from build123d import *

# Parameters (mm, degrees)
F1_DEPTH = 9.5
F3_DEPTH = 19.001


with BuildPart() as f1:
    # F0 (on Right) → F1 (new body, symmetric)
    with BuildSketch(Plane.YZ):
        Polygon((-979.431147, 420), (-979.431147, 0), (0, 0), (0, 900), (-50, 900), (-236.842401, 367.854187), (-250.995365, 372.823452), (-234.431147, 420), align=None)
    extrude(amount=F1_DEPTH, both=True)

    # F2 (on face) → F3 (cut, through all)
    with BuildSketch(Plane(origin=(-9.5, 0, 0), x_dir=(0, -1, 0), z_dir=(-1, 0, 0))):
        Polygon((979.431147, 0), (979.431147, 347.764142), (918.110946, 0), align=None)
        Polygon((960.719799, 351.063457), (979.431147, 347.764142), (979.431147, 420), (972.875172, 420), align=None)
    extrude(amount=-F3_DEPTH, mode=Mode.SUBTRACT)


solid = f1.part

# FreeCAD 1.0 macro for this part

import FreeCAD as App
import Part
import Sketcher
Q = App.Units.Quantity

doc = App.newDocument("Part")
body = doc.addObject("PartDesign::Body", "Body")

sketch1 = body.newObject("Sketcher::SketchObject", "Sketch")
sketch1.AttachmentSupport = (doc.getObject("YZ_Plane"), [""])
sketch1.MapMode = "FlatFace"
sketch1.addGeometry([
    Part.LineSegment(App.Vector(-979, 420, 0), App.Vector(-979, 0, 0)),
    Part.LineSegment(App.Vector(-979, 0, 0), App.Vector(0, 0, 0)),
    Part.LineSegment(App.Vector(0, 0, 0), App.Vector(0, 900, 0)),
    Part.LineSegment(App.Vector(0, 900, 0), App.Vector(-50, 900, 0)),
    Part.LineSegment(App.Vector(-50, 900, 0), App.Vector(-237, 368, 0)),
    Part.LineSegment(App.Vector(-237, 368, 0), App.Vector(-251, 373, 0)),
    Part.LineSegment(App.Vector(-251, 373, 0), App.Vector(-234, 420, 0)),
    Part.LineSegment(App.Vector(-234, 420, 0), App.Vector(-979, 420, 0)),
], False)
sketch1.addConstraint([
    Sketcher.Constraint("Coincident", 0, 2, 1, 1),
    Sketcher.Constraint("Coincident", 1, 2, 2, 1),
    Sketcher.Constraint("Coincident", 2, 2, 3, 1),
    Sketcher.Constraint("Coincident", 3, 2, 4, 1),
    Sketcher.Constraint("Coincident", 4, 2, 5, 1),
    Sketcher.Constraint("Coincident", 5, 2, 6, 1),
    Sketcher.Constraint("Coincident", 6, 2, 7, 1),
    Sketcher.Constraint("Coincident", 7, 2, 0, 1),
    Sketcher.Constraint("Vertical", 0),
    Sketcher.Constraint("Horizontal", 1),
    Sketcher.Constraint("Vertical", 2),
    Sketcher.Constraint("Horizontal", 3),
    Sketcher.Constraint("Horizontal", 7),
    Sketcher.Constraint("Coincident", 1, 2, -1, 1),
    Sketcher.Constraint("Perpendicular", 4, 5),
    Sketcher.Constraint("Perpendicular", 5, 6),
    Sketcher.Constraint("DistanceX", 3, 2, 3, 1, 50.0),
    Sketcher.Constraint("DistanceX", 7, 2, 7, 1, 745.0),
    Sketcher.Constraint("DistanceY", 0, 2, 0, 1, 420.0),
    Sketcher.Constraint("DistanceY", 2, 1, 2, 2, 900.0),
    Sketcher.Constraint("Distance", 5, 14.999999),
    Sketcher.Constraint("Distance", 6, 50.0),
    Sketcher.Constraint("DistanceX", 4, 2, -1, 1, 236.842401),
])
pad1 = body.newObject("PartDesign::Pad", "Pad")
pad1.Profile = sketch1
pad1.Length = 19
pad1.Midplane = True

sketch2 = body.newObject("Sketcher::SketchObject", "Sketch001")
sketch2.AttachmentSupport = (doc.getObject("YZ_Plane"), [""])
sketch2.MapMode = "FlatFace"
sketch2.AttachmentOffset = App.Placement(App.Vector(0, 0, -9.5), App.Rotation())
sketch2.addGeometry([
    Part.LineSegment(App.Vector(-979, 0, 0), App.Vector(-979, 348, 0)),
    Part.LineSegment(App.Vector(-979, 348, 0), App.Vector(-918, 0, 0)),
    Part.LineSegment(App.Vector(-918, 0, 0), App.Vector(-979, 0, 0)),
    Part.LineSegment(App.Vector(-961, 351, 0), App.Vector(-979, 348, 0)),
    Part.LineSegment(App.Vector(-979, 348, 0), App.Vector(-979, 420, 0)),
    Part.LineSegment(App.Vector(-979, 420, 0), App.Vector(-973, 420, 0)),
    Part.LineSegment(App.Vector(-973, 420, 0), App.Vector(-961, 351, 0)),
], False)
sketch2.addConstraint([
    Sketcher.Constraint("Coincident", 0, 2, 1, 1),
    Sketcher.Constraint("Coincident", 1, 2, 2, 1),
    Sketcher.Constraint("Coincident", 2, 2, 0, 1),
    Sketcher.Constraint("Coincident", 3, 2, 4, 1),
    Sketcher.Constraint("Coincident", 4, 2, 5, 1),
    Sketcher.Constraint("Coincident", 5, 2, 6, 1),
    Sketcher.Constraint("Coincident", 6, 2, 3, 1),
    Sketcher.Constraint("Vertical", 0),
    Sketcher.Constraint("Horizontal", 2),
    Sketcher.Constraint("Vertical", 4),
    Sketcher.Constraint("Horizontal", 5),
    Sketcher.Constraint("Coincident", 3, 2, 0, 2),
    Sketcher.Constraint("PointOnObject", 1, 2, -1),
    Sketcher.Constraint("Perpendicular", 1, 3),
    Sketcher.Constraint("Perpendicular", 3, 6),
    Sketcher.Constraint("Angle", 1, Q("-80 deg")),
    Sketcher.Constraint("Distance", 3, 19.000001),
    Sketcher.Constraint("Distance", 6, 70.0),
    Sketcher.Constraint("DistanceY", -1, 1, 4, 2, 420.0),
    Sketcher.Constraint("DistanceX", 6, 2, -1, 1, 960.719799),
])
pocket1 = body.newObject("PartDesign::Pocket", "Pocket")
pocket1.Profile = sketch2
pocket1.Type = "ThroughAll"
pocket1.Reversed = True

doc.recompute()
